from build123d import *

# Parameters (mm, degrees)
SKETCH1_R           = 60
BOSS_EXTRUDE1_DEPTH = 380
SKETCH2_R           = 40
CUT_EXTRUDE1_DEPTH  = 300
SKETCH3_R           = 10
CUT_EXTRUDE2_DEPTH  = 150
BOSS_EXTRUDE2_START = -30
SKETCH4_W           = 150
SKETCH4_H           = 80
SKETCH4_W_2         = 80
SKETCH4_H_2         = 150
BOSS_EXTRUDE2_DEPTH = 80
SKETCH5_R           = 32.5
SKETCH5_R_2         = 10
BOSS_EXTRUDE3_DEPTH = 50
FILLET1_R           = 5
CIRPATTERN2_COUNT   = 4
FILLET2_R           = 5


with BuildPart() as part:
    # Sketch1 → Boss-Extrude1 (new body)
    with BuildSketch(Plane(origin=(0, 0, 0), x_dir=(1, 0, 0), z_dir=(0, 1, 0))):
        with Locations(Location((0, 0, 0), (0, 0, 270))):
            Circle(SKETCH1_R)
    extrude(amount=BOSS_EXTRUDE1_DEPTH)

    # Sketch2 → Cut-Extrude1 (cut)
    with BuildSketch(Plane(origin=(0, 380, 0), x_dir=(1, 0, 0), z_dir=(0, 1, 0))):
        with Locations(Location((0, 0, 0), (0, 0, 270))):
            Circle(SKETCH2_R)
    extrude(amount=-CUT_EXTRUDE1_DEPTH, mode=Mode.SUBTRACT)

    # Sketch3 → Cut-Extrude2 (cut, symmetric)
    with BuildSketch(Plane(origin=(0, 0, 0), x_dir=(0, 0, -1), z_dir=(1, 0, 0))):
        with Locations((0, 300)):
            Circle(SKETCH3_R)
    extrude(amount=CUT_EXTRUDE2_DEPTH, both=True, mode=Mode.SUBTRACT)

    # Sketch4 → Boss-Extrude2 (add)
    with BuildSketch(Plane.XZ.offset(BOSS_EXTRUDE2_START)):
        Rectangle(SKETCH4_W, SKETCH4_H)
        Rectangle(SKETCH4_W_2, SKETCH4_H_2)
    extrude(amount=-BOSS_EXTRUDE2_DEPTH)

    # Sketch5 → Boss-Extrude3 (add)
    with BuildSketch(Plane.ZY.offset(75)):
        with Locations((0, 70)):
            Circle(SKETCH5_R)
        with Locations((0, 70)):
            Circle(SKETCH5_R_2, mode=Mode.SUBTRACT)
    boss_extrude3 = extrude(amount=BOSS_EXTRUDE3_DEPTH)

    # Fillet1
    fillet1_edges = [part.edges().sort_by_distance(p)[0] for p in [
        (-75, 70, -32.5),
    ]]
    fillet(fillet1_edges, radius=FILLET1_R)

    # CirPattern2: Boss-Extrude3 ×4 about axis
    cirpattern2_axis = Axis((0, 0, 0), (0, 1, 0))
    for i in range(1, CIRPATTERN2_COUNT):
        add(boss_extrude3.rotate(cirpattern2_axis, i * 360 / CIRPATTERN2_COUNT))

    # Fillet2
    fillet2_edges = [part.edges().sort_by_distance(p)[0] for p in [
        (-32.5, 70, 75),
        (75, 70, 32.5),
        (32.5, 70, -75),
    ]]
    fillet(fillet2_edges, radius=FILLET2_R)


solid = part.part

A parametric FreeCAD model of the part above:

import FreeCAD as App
import Part
import Sketcher

V = App.Vector


def edges_at(feature, points):
    """Names of the edges that pass closest to the given points."""
    edges = feature.Shape.Edges
    near = lambda p: min(range(len(edges)), key=lambda i: edges[i].distToShape(Part.Vertex(*p))[0])
    return sorted({f"Edge{near(p) + 1}" for p in points})

doc = App.newDocument("Part")
body = doc.addObject("PartDesign::Body", "Body")

# Sketch on XZ plane
sketch1 = body.newObject("Sketcher::SketchObject", "Sketch")
sketch1.AttachmentSupport = (doc.getObject("XZ_Plane"), [""])
sketch1.MapMode = "FlatFace"
sketch1.addGeometry(Part.Circle(V(0, 0, 0), V(0, 0, 1), 60), False)
sketch1.addConstraint(Sketcher.Constraint("Coincident", 0, 3, -1, 1))
sketch1.addConstraint(Sketcher.Constraint("Diameter", 0, 120.0))
pad1 = body.newObject("PartDesign::Pad", "Pad")
pad1.Profile = sketch1
pad1.Length = 380
pad1.Reversed = True

# Sketch on XZ plane
sketch2 = body.newObject("Sketcher::SketchObject", "Sketch001")
sketch2.AttachmentSupport = (doc.getObject("XZ_Plane"), [""])
sketch2.MapMode = "FlatFace"
sketch2.AttachmentOffset = App.Placement(V(0, 0, -380), App.Rotation())
sketch2.addGeometry(Part.Circle(V(0, 0, 0), V(0, 0, 1), 40), False)
sketch2.addConstraint(Sketcher.Constraint("Coincident", 0, 3, -1, 1))
sketch2.addConstraint(Sketcher.Constraint("Diameter", 0, 80.0))
pocket1 = body.newObject("PartDesign::Pocket", "Pocket")
pocket1.Profile = sketch2
pocket1.Length = 300
pocket1.Reversed = True

# Sketch on YZ plane
sketch3 = body.newObject("Sketcher::SketchObject", "Sketch002")
sketch3.AttachmentSupport = (doc.getObject("YZ_Plane"), [""])
sketch3.MapMode = "FlatFace"
sketch3.addGeometry(Part.Circle(V(300, 0, 0), V(0, 0, 1), 10), False)
sketch3.addConstraint(Sketcher.Constraint("PointOnObject", 0, 3, -1))
sketch3.addConstraint(Sketcher.Constraint("Diameter", 0, 20.0))
sketch3.addConstraint(Sketcher.Constraint("DistanceX", -1, 1, 0, 3, 300.0))
pocket2 = body.newObject("PartDesign::Pocket", "Pocket001")
pocket2.Profile = sketch3
pocket2.Length = 300
pocket2.Midplane = True

# Sketch on XZ plane
sketch4 = body.newObject("Sketcher::SketchObject", "Sketch003")
sketch4.AttachmentSupport = (doc.getObject("XZ_Plane"), [""])
sketch4.MapMode = "FlatFace"
sketch4.AttachmentOffset = App.Placement(V(0, 0, -30), App.Rotation())
sketch4.addGeometry(Part.LineSegment(V(-75, 40, 0), V(-75, -40, 0)), False)
sketch4.addGeometry(Part.LineSegment(V(-75, -40, 0), V(-40, -40, 0)), False)
sketch4.addGeometry(Part.LineSegment(V(-40, -40, 0), V(-40, -75, 0)), False)
sketch4.addGeometry(Part.LineSegment(V(-40, -75, 0), V(40, -75, 0)), False)
sketch4.addGeometry(Part.LineSegment(V(40, -75, 0), V(40, -40, 0)), False)
sketch4.addGeometry(Part.LineSegment(V(40, -40, 0), V(75, -40, 0)), False)
sketch4.addGeometry(Part.LineSegment(V(75, -40, 0), V(75, 40, 0)), False)
sketch4.addGeometry(Part.LineSegment(V(75, 40, 0), V(40, 40, 0)), False)
sketch4.addGeometry(Part.LineSegment(V(40, 40, 0), V(40, 75, 0)), False)
sketch4.addGeometry(Part.LineSegment(V(40, 75, 0), V(-40, 75, 0)), False)
sketch4.addGeometry(Part.LineSegment(V(-40, 75, 0), V(-40, 40, 0)), False)
sketch4.addGeometry(Part.LineSegment(V(-40, 40, 0), V(-75, 40, 0)), False)
sketch4.addConstraint(Sketcher.Constraint("Coincident", 0, 2, 1, 1))
sketch4.addConstraint(Sketcher.Constraint("Coincident", 1, 2, 2, 1))
sketch4.addConstraint(Sketcher.Constraint("Coincident", 2, 2, 3, 1))
sketch4.addConstraint(Sketcher.Constraint("Coincident", 3, 2, 4, 1))
sketch4.addConstraint(Sketcher.Constraint("Coincident", 4, 2, 5, 1))
sketch4.addConstraint(Sketcher.Constraint("Coincident", 5, 2, 6, 1))
sketch4.addConstraint(Sketcher.Constraint("Coincident", 6, 2, 7, 1))
sketch4.addConstraint(Sketcher.Constraint("Coincident", 7, 2, 8, 1))
sketch4.addConstraint(Sketcher.Constraint("Coincident", 8, 2, 9, 1))
sketch4.addConstraint(Sketcher.Constraint("Coincident", 9, 2, 10, 1))
sketch4.addConstraint(Sketcher.Constraint("Coincident", 10, 2, 11, 1))
sketch4.addConstraint(Sketcher.Constraint("Coincident", 11, 2, 0, 1))
sketch4.addConstraint(Sketcher.Constraint("Vertical", 0))
sketch4.addConstraint(Sketcher.Constraint("Horizontal", 1))
sketch4.addConstraint(Sketcher.Constraint("Vertical", 2))
sketch4.addConstraint(Sketcher.Constraint("Horizontal", 3))
sketch4.addConstraint(Sketcher.Constraint("Vertical", 4))
sketch4.addConstraint(Sketcher.Constraint("Horizontal", 5))
sketch4.addConstraint(Sketcher.Constraint("Vertical", 6))
sketch4.addConstraint(Sketcher.Constraint("Horizontal", 7))
sketch4.addConstraint(Sketcher.Constraint("Vertical", 8))
sketch4.addConstraint(Sketcher.Constraint("Horizontal", 9))
sketch4.addConstraint(Sketcher.Constraint("Vertical", 10))
sketch4.addConstraint(Sketcher.Constraint("Horizontal", 11))
sketch4.addConstraint(Sketcher.Constraint("Symmetric", 0, 2, 6, 2, -1, 1))
sketch4.addConstraint(Sketcher.Constraint("Symmetric", 2, 2, 8, 2, -1, 1))
sketch4.addConstraint(Sketcher.Constraint("Symmetric", 4, 2, 10, 2, -1, 1))
sketch4.addConstraint(Sketcher.Constraint("Symmetric", 1, 2, 4, 2, -2))
sketch4.addConstraint(Sketcher.Constraint("Equal", 9, 0))
sketch4.addConstraint(Sketcher.Constraint("Equal", 11, 2))
sketch4.addConstraint(Sketcher.Constraint("DistanceX", 1, 1, 1, 2, 35.0))
sketch4.addConstraint(Sketcher.Constraint("DistanceX", 3, 1, 3, 2, 80.0))
pad2 = body.newObject("PartDesign::Pad", "Pad001")
pad2.Profile = sketch4
pad2.Length = 80
pad2.Reversed = True

# Sketch on YZ plane
sketch5 = body.newObject("Sketcher::SketchObject", "Sketch004")
sketch5.AttachmentSupport = (doc.getObject("YZ_Plane"), [""])
sketch5.MapMode = "FlatFace"
sketch5.AttachmentOffset = App.Placement(V(0, 0, -75), App.Rotation())
sketch5.addGeometry(Part.Circle(V(70, 0, 0), V(0, 0, 1), 32), False)
sketch5.addGeometry(Part.Circle(V(70, 0, 0), V(0, 0, 1), 10), False)
sketch5.addConstraint(Sketcher.Constraint("Coincident", 1, 3, 0, 3))
sketch5.addConstraint(Sketcher.Constraint("PointOnObject", 0, 3, -1))
sketch5.addConstraint(Sketcher.Constraint("Diameter", 0, 65.0))
sketch5.addConstraint(Sketcher.Constraint("Diameter", 1, 20.0))
sketch5.addConstraint(Sketcher.Constraint("DistanceX", -1, 1, 0, 3, 70.0))
pad3 = body.newObject("PartDesign::Pad", "Pad002")
pad3.Profile = sketch5
pad3.Length = 50
pad3.Reversed = True
doc.recompute()

fillet = body.newObject("PartDesign::Fillet", "Fillet")
fillet.Base = (pad3, edges_at(pad3, [(-75, 70, -32.5)]))
fillet.Radius = 5
doc.recompute()

polarpattern = body.newObject("PartDesign::PolarPattern", "PolarPattern")
polarpattern.Originals = [pad3]
polarpattern.Axis = (doc.getObject("Y_Axis"), [""])
polarpattern.Angle = 360
polarpattern.Occurrences = 4
body.Tip = polarpattern
doc.recompute()

fillet2 = body.newObject("PartDesign::Fillet", "Fillet001")
fillet2.Base = (polarpattern, edges_at(polarpattern, [(-32.5, 70, 75), (75, 70, 32.5), (32.5, 70, -75)]))
fillet2.Radius = 5

doc.recompute()
